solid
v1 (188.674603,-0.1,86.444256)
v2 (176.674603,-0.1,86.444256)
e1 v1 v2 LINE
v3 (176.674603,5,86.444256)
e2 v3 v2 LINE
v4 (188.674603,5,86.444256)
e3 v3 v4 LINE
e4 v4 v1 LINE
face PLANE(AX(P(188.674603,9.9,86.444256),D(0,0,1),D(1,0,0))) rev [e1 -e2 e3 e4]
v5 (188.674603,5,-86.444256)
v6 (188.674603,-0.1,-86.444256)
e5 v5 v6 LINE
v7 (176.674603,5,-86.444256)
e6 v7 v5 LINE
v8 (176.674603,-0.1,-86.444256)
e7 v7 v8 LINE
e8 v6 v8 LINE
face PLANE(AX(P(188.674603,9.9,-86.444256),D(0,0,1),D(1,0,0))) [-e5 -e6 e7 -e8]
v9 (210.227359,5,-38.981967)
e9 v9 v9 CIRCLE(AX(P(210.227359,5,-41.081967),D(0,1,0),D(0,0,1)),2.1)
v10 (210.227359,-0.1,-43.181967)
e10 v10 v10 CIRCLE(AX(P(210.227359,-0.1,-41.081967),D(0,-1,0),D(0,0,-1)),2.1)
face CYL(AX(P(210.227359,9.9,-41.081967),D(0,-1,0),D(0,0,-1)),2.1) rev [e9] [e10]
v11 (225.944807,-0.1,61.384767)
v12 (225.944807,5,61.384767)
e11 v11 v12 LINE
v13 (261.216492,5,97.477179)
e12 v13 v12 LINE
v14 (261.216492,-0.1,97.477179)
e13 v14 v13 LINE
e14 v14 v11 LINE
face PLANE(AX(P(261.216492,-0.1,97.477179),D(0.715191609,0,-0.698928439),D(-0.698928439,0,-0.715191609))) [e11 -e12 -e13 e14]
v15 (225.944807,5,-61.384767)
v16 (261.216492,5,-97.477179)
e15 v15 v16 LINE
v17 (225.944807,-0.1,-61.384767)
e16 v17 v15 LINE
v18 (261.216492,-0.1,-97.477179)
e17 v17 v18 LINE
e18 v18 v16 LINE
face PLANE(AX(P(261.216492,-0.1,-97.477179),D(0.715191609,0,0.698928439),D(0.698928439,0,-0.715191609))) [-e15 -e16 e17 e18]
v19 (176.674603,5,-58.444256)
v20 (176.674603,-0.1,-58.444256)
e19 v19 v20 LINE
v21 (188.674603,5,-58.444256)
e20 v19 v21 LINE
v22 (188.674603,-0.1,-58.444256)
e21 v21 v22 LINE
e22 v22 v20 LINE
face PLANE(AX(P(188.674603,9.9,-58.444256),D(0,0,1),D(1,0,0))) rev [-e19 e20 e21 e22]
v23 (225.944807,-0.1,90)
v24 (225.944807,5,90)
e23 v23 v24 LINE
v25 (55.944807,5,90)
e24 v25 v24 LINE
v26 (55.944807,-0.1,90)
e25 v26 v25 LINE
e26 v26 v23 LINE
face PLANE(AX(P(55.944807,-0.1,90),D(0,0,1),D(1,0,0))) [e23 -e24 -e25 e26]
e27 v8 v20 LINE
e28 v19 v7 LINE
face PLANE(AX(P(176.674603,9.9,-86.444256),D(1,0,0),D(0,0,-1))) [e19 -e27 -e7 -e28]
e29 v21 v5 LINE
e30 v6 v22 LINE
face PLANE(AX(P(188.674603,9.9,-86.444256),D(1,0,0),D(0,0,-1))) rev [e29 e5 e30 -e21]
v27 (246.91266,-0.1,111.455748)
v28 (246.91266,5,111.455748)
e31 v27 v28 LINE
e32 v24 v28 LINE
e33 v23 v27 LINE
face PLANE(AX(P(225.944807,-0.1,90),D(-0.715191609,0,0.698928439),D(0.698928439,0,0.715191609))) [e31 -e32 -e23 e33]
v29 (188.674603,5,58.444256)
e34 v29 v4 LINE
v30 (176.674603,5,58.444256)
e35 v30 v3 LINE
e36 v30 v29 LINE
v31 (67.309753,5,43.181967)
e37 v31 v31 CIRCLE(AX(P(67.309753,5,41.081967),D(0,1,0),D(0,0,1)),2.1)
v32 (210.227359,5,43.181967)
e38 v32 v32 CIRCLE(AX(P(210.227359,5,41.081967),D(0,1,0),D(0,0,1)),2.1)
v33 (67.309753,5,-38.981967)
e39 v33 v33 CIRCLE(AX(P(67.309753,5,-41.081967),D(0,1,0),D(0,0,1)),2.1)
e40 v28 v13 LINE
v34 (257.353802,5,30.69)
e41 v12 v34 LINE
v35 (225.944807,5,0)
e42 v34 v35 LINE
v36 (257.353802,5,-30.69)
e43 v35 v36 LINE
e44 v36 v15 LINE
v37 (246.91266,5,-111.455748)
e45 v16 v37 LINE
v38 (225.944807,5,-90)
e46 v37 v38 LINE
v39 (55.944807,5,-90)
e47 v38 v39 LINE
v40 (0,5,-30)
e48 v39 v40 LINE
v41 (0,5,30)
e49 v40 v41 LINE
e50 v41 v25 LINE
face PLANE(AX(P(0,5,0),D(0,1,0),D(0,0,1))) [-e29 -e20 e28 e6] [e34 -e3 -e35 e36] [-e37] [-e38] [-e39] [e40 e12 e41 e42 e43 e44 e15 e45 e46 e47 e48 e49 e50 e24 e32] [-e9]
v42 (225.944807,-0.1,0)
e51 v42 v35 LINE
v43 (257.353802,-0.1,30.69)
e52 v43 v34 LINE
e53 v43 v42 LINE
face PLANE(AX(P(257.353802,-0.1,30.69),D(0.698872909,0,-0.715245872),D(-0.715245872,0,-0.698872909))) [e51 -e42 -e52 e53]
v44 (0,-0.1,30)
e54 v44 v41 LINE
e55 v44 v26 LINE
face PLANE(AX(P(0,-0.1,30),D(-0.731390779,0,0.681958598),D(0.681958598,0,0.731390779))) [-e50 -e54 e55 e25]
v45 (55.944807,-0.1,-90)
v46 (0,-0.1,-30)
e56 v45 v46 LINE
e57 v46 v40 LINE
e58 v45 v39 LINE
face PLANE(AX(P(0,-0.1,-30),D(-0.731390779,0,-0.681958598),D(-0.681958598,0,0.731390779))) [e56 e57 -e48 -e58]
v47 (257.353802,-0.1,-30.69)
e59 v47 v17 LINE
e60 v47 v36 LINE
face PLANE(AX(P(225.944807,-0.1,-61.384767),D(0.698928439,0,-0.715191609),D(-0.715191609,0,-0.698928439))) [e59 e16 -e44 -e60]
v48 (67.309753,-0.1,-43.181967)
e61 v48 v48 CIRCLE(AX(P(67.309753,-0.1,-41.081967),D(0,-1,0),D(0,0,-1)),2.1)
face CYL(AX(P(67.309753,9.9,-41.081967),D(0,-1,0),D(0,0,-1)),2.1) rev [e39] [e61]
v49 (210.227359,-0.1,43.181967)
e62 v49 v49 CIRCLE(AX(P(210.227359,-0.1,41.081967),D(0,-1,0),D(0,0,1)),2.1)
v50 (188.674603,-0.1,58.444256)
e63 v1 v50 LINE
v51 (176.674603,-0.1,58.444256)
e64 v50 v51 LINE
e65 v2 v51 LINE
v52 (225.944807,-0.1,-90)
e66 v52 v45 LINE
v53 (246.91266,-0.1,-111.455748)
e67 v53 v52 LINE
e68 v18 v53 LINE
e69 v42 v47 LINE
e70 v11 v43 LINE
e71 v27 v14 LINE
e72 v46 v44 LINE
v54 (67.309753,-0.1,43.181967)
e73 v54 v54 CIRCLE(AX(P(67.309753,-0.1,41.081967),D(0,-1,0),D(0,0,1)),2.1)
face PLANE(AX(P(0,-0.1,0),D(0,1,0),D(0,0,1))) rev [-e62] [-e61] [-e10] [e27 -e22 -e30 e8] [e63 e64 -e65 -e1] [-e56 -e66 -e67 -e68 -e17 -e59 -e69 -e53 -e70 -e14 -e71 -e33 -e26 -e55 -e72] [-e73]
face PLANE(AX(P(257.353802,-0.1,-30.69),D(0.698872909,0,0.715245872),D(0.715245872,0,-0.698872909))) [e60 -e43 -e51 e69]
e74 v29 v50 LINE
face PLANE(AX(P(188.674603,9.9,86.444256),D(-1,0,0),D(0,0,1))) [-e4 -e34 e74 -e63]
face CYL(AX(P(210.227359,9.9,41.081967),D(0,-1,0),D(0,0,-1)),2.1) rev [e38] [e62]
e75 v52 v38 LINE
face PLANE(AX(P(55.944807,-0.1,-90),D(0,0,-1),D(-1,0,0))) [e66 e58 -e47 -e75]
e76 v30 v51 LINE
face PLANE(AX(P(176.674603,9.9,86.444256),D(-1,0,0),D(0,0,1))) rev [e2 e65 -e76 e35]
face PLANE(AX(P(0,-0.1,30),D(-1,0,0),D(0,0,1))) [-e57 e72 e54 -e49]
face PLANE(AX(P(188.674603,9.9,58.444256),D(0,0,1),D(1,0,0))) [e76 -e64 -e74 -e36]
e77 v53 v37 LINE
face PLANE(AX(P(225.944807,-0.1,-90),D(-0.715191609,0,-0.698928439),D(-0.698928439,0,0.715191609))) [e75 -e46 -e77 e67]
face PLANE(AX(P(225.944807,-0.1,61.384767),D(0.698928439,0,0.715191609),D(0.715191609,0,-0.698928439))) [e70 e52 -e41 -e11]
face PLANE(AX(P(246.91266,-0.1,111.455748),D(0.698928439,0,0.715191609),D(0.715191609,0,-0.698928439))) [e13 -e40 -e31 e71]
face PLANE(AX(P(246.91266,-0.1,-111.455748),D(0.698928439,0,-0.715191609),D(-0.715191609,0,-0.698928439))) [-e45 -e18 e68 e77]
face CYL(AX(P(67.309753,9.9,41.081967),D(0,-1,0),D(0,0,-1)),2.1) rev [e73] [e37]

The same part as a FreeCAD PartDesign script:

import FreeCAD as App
import Part
import Sketcher
from FreeCAD import Vector
Q = App.Units.Quantity

doc = App.newDocument("Part")
body = doc.addObject("PartDesign::Body", "Body")

# Sketch on XZ plane
sketch1 = body.newObject("Sketcher::SketchObject", "Sketch")
sketch1.AttachmentSupport = (doc.getObject("XZ_Plane"), [""])
sketch1.MapMode = "FlatFace"
sketch1.addGeometry(Part.LineSegment(Vector(0, -30, 0), Vector(0, 30, 0)), False)
sketch1.addGeometry(Part.LineSegment(Vector(0, 30, 0), Vector(56, 90, 0)), False)
sketch1.addGeometry(Part.LineSegment(Vector(56, 90, 0), Vector(226, 90, 0)), False)
sketch1.addGeometry(Part.LineSegment(Vector(226, 90, 0), Vector(247, 111, 0)), False)
sketch1.addGeometry(Part.LineSegment(Vector(247, 111, 0), Vector(261, 97, 0)), False)
sketch1.addGeometry(Part.LineSegment(Vector(261, 97, 0), Vector(226, 61, 0)), False)
sketch1.addGeometry(Part.LineSegment(Vector(226, 61, 0), Vector(257, 31, 0)), False)
sketch1.addGeometry(Part.LineSegment(Vector(257, 31, 0), Vector(226, 0, 0)), False)
sketch1.addGeometry(Part.LineSegment(Vector(226, 0, 0), Vector(257, -31, 0)), False)
sketch1.addGeometry(Part.LineSegment(Vector(257, -31, 0), Vector(226, -61, 0)), False)
sketch1.addGeometry(Part.LineSegment(Vector(226, -61, 0), Vector(261, -97, 0)), False)
sketch1.addGeometry(Part.LineSegment(Vector(261, -97, 0), Vector(247, -111, 0)), False)
sketch1.addGeometry(Part.LineSegment(Vector(247, -111, 0), Vector(226, -90, 0)), False)
sketch1.addGeometry(Part.LineSegment(Vector(226, -90, 0), Vector(56, -90, 0)), False)
sketch1.addGeometry(Part.LineSegment(Vector(56, -90, 0), Vector(0, -30, 0)), False)
sketch1.addConstraint(Sketcher.Constraint("Coincident", 0, 2, 1, 1))
sketch1.addConstraint(Sketcher.Constraint("Coincident", 1, 2, 2, 1))
sketch1.addConstraint(Sketcher.Constraint("Coincident", 2, 2, 3, 1))
sketch1.addConstraint(Sketcher.Constraint("Coincident", 3, 2, 4, 1))
sketch1.addConstraint(Sketcher.Constraint("Coincident", 4, 2, 5, 1))
sketch1.addConstraint(Sketcher.Constraint("Coincident", 5, 2, 6, 1))
sketch1.addConstraint(Sketcher.Constraint("Coincident", 6, 2, 7, 1))
sketch1.addConstraint(Sketcher.Constraint("Coincident", 7, 2, 8, 1))
sketch1.addConstraint(Sketcher.Constraint("Coincident", 8, 2, 9, 1))
sketch1.addConstraint(Sketcher.Constraint("Coincident", 9, 2, 10, 1))
sketch1.addConstraint(Sketcher.Constraint("Coincident", 10, 2, 11, 1))
sketch1.addConstraint(Sketcher.Constraint("Coincident", 11, 2, 12, 1))
sketch1.addConstraint(Sketcher.Constraint("Coincident", 12, 2, 13, 1))
sketch1.addConstraint(Sketcher.Constraint("Coincident", 13, 2, 14, 1))
sketch1.addConstraint(Sketcher.Constraint("Coincident", 14, 2, 0, 1))
sketch1.addConstraint(Sketcher.Constraint("Vertical", 0))
sketch1.addConstraint(Sketcher.Constraint("Horizontal", 2))
sketch1.addConstraint(Sketcher.Constraint("Horizontal", 13))
sketch1.addConstraint(Sketcher.Constraint("Symmetric", 0, 2, 14, 2, -1, 1))
sketch1.addConstraint(Sketcher.Constraint("Symmetric", 6, 2, 8, 2, -1))
sketch1.addConstraint(Sketcher.Constraint("Symmetric", 5, 2, 9, 2, -1))
sketch1.addConstraint(Sketcher.Constraint("Symmetric", 4, 2, 10, 2, -1))
sketch1.addConstraint(Sketcher.Constraint("Symmetric", 3, 2, 11, 2, -1))
sketch1.addConstraint(Sketcher.Constraint("Symmetric", 2, 2, 12, 2, -1))
sketch1.addConstraint(Sketcher.Constraint("PointOnObject", 7, 2, -1))
sketch1.addConstraint(Sketcher.Constraint("Perpendicular", 3, 4))
sketch1.addConstraint(Sketcher.Constraint("Perpendicular", 4, 5))
sketch1.addConstraint(Sketcher.Constraint("Perpendicular", 5, 6))
sketch1.addConstraint(Sketcher.Constraint("Vertical", 2, 2, 5, 2))
sketch1.addConstraint(Sketcher.Constraint("Vertical", 5, 2, 7, 2))
sketch1.addConstraint(Sketcher.Constraint("Vertical", 1, 2, 13, 2))
sketch1.addConstraint(Sketcher.Constraint("DistanceX", 2, 1, 2, 2, Q("170 mm")))
sketch1.addConstraint(Sketcher.Constraint("DistanceY", 0, 1, 0, 2, Q("60 mm")))
sketch1.addConstraint(Sketcher.Constraint("Distance", 3, Q("30 mm")))
sketch1.addConstraint(Sketcher.Constraint("Distance", 4, Q("20 mm")))
sketch1.addConstraint(Sketcher.Constraint("DistanceY", -1, 1, 1, 2, Q("90 mm")))
sketch1.addConstraint(Sketcher.Constraint("DistanceY", -1, 1, 6, 2, Q("30.69 mm")))
sketch1.addConstraint(Sketcher.Constraint("DistanceX", -1, 1, 6, 2, Q("257.353802 mm")))
sketch1.addConstraint(Sketcher.Constraint("Distance", 1, Q("82.035489 mm")))
pad1 = body.newObject("PartDesign::Pad", "Pad")
pad1.Profile = sketch1
pad1.Type = "TwoLengths"
pad1.Length = 5
pad1.Length2 = 0.1
pad1.Reversed = True

# Sketch on XZ plane
sketch2 = body.newObject("Sketcher::SketchObject", "Sketch001")
sketch2.AttachmentSupport = (doc.getObject("XZ_Plane"), [""])
sketch2.MapMode = "FlatFace"
sketch2.AttachmentOffset = App.Placement(Vector(0, 0, 0.1), App.Rotation())
sketch2.addGeometry(Part.Circle(Vector(67.3, -41.1, 0), Vector(0, 0, 1), 2.1), False)
sketch2.addGeometry(Part.Circle(Vector(210.2, -41.1, 0), Vector(0, 0, 1), 2.1), False)
sketch2.addGeometry(Part.Circle(Vector(210.2, 41.1, 0), Vector(0, 0, 1), 2.1), False)
sketch2.addGeometry(Part.Circle(Vector(67.3, 41.1, 0), Vector(0, 0, 1), 2.1), False)
sketch2.addConstraint(Sketcher.Constraint("Equal", 0, 1))
sketch2.addConstraint(Sketcher.Constraint("Equal", 1, 2))
sketch2.addConstraint(Sketcher.Constraint("Equal", 2, 3))
sketch2.addConstraint(Sketcher.Constraint("Symmetric", 1, 3, 2, 3, -1))
sketch2.addConstraint(Sketcher.Constraint("Symmetric", 0, 3, 3, 3, -1))
sketch2.addConstraint(Sketcher.Constraint("Horizontal", 0, 3, 1, 3))
sketch2.addConstraint(Sketcher.Constraint("Diameter", 0, Q("4.2 mm")))
sketch2.addConstraint(Sketcher.Constraint("DistanceX", -1, 1, 1, 3, Q("210.227359 mm")))
sketch2.addConstraint(Sketcher.Constraint("DistanceX", -1, 1, 0, 3, Q("67.309753 mm")))
sketch2.addConstraint(Sketcher.Constraint("DistanceY", 0, 3, -1, 1, Q("41.081967 mm")))
pocket1 = body.newObject("PartDesign::Pocket", "Pocket")
pocket1.Profile = sketch2
pocket1.Length = 10

# Sketch on XZ plane
sketch3 = body.newObject("Sketcher::SketchObject", "Sketch002")
sketch3.AttachmentSupport = (doc.getObject("XZ_Plane"), [""])
sketch3.MapMode = "FlatFace"
sketch3.AttachmentOffset = App.Placement(Vector(0, 0, 0.1), App.Rotation())
sketch3.addGeometry(Part.LineSegment(Vector(177, -58, 0), Vector(177, -86, 0)), False)
sketch3.addGeometry(Part.LineSegment(Vector(177, -86, 0), Vector(189, -86, 0)), False)
sketch3.addGeometry(Part.LineSegment(Vector(189, -86, 0), Vector(189, -58, 0)), False)
sketch3.addGeometry(Part.LineSegment(Vector(189, -58, 0), Vector(177, -58, 0)), False)
sketch3.addGeometry(Part.LineSegment(Vector(177, 86, 0), Vector(177, 58, 0)), False)
sketch3.addGeometry(Part.LineSegment(Vector(177, 58, 0), Vector(189, 58, 0)), False)
sketch3.addGeometry(Part.LineSegment(Vector(189, 58, 0), Vector(189, 86, 0)), False)
sketch3.addGeometry(Part.LineSegment(Vector(189, 86, 0), Vector(177, 86, 0)), False)
sketch3.addConstraint(Sketcher.Constraint("Coincident", 0, 2, 1, 1))
sketch3.addConstraint(Sketcher.Constraint("Coincident", 1, 2, 2, 1))
sketch3.addConstraint(Sketcher.Constraint("Coincident", 2, 2, 3, 1))
sketch3.addConstraint(Sketcher.Constraint("Coincident", 3, 2, 0, 1))
sketch3.addConstraint(Sketcher.Constraint("Coincident", 4, 2, 5, 1))
sketch3.addConstraint(Sketcher.Constraint("Coincident", 5, 2, 6, 1))
sketch3.addConstraint(Sketcher.Constraint("Coincident", 6, 2, 7, 1))
sketch3.addConstraint(Sketcher.Constraint("Coincident", 7, 2, 4, 1))
sketch3.addConstraint(Sketcher.Constraint("Vertical", 0))
sketch3.addConstraint(Sketcher.Constraint("Horizontal", 1))
sketch3.addConstraint(Sketcher.Constraint("Vertical", 2))
sketch3.addConstraint(Sketcher.Constraint("Horizontal", 3))
sketch3.addConstraint(Sketcher.Constraint("Vertical", 4))
sketch3.addConstraint(Sketcher.Constraint("Horizontal", 5))
sketch3.addConstraint(Sketcher.Constraint("Vertical", 6))
sketch3.addConstraint(Sketcher.Constraint("Horizontal", 7))
sketch3.addConstraint(Sketcher.Constraint("Symmetric", 3, 2, 4, 2, -1))
sketch3.addConstraint(Sketcher.Constraint("Symmetric", 1, 2, 6, 2, -1))
sketch3.addConstraint(Sketcher.Constraint("DistanceX", 1, 1, 1, 2, Q("12 mm")))
sketch3.addConstraint(Sketcher.Constraint("DistanceY", 0, 2, 0, 1, Q("28 mm")))
sketch3.addConstraint(Sketcher.Constraint("DistanceX", -1, 1, 0, 2, Q("176.674603 mm")))
sketch3.addConstraint(Sketcher.Constraint("DistanceY", 0, 2, -1, 1, Q("86.444256 mm")))
pocket2 = body.newObject("PartDesign::Pocket", "Pocket001")
pocket2.Profile = sketch3
pocket2.Length = 10

doc.recompute()
